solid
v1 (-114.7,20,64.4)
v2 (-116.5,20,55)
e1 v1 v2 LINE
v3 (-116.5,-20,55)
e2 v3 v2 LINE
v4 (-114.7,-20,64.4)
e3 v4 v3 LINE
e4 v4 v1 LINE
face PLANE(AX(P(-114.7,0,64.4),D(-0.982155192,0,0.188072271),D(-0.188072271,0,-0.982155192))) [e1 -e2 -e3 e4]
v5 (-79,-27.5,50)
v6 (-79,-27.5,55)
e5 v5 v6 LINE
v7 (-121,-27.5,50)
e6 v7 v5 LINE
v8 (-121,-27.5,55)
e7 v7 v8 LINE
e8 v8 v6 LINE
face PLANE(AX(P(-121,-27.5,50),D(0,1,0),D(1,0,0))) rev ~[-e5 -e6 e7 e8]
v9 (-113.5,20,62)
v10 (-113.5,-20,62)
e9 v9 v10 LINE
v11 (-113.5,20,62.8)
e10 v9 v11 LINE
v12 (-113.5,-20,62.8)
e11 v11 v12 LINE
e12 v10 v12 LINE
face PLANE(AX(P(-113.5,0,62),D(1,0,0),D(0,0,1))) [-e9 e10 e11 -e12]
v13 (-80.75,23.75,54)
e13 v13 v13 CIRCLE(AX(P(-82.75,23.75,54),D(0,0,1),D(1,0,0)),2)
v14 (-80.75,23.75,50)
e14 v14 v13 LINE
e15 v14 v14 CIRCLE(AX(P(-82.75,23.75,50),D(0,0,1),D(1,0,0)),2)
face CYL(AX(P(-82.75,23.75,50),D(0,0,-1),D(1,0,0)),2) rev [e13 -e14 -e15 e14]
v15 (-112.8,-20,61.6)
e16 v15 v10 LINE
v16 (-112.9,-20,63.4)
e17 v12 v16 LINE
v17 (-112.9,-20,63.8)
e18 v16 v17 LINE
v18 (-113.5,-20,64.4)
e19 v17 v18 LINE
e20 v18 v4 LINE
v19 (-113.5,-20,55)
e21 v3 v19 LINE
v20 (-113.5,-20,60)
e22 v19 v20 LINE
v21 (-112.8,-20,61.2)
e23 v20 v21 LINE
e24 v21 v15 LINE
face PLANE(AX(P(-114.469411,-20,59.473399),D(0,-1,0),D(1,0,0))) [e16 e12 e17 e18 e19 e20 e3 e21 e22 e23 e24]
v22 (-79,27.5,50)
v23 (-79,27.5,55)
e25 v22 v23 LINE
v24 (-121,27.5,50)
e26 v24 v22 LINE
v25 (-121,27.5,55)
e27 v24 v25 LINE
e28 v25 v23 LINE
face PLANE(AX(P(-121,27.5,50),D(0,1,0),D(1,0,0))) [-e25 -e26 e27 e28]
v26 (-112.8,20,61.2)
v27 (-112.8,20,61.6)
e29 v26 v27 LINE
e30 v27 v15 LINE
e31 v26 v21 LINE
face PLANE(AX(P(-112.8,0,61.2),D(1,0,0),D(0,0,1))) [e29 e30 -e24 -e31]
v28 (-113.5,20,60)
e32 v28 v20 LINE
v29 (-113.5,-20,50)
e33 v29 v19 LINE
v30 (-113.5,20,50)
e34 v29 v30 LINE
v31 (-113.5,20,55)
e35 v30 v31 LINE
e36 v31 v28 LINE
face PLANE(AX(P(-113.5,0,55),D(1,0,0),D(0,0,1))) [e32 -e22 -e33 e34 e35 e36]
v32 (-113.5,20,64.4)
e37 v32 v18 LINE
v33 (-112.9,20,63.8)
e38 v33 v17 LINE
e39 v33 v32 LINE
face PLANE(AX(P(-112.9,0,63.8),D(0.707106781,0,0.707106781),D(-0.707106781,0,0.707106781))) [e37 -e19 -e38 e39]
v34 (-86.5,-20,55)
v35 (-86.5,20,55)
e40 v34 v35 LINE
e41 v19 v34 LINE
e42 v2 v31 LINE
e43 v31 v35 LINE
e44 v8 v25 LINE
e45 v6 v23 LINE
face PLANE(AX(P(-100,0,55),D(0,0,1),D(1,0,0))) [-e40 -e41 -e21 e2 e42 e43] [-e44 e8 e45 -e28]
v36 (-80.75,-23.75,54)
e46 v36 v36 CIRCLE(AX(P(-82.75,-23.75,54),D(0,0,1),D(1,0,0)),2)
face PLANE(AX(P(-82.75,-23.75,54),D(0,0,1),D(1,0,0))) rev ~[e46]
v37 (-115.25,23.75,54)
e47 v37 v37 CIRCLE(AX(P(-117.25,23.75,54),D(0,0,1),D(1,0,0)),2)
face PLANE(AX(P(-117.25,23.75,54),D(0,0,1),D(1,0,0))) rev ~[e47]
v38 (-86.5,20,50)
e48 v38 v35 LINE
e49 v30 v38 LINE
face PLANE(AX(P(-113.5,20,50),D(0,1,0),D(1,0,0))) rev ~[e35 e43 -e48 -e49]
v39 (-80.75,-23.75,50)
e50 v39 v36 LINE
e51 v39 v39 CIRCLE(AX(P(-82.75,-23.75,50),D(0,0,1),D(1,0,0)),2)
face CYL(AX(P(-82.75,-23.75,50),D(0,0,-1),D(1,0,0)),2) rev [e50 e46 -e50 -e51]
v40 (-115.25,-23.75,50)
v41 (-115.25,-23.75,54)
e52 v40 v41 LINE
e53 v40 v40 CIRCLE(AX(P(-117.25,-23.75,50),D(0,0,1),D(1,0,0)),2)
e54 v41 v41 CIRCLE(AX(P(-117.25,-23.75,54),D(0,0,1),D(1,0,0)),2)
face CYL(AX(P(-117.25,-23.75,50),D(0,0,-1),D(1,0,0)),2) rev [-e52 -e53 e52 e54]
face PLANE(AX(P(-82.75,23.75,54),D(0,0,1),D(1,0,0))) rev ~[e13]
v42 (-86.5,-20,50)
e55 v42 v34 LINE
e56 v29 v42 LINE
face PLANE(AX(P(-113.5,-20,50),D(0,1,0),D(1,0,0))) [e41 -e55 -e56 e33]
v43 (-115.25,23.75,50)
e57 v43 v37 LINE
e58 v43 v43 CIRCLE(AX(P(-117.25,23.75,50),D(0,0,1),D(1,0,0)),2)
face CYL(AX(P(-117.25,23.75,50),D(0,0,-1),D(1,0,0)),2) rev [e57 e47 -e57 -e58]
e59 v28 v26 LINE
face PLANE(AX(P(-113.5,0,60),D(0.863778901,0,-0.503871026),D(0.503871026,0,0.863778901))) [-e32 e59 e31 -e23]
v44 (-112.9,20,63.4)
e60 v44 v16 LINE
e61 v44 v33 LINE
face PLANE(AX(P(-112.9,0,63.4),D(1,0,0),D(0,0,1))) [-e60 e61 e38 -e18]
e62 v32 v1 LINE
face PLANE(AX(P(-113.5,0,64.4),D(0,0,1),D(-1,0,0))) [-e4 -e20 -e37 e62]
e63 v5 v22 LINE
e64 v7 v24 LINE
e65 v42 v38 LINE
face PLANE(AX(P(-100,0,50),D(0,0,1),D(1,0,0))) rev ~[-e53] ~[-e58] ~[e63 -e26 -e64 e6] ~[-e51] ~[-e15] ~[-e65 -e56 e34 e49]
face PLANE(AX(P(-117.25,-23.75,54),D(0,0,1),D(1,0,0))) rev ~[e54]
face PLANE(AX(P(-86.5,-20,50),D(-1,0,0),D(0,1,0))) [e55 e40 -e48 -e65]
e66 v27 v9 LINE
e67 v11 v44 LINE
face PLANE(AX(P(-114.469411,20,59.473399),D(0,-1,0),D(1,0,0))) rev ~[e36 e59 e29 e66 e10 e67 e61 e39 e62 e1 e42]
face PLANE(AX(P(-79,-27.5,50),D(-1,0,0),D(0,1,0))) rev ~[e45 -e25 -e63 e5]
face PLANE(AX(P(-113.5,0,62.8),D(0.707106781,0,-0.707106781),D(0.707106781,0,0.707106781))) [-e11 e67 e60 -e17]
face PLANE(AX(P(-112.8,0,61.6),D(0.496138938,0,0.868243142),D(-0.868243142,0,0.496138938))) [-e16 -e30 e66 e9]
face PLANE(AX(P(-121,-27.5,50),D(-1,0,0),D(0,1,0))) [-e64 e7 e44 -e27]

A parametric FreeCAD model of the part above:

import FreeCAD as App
import Part
import Sketcher

V = App.Vector
Q = App.Units.Quantity

doc = App.newDocument("Part")
body = doc.addObject("PartDesign::Body", "Body")

sketch1 = doc.addObject("Sketcher::SketchObject", "Sketch")
body.addObject(sketch1)
sketch1.AttachmentSupport = (doc.XY_Plane, [""])
sketch1.MapMode = "FlatFace"
sketch1.addGeometry(Part.LineSegment(V(-21, 28, 0), V(-21, -28, 0)), False)
sketch1.addGeometry(Part.LineSegment(V(-21, -28, 0), V(21, -28, 0)), False)
sketch1.addGeometry(Part.LineSegment(V(21, -28, 0), V(21, 28, 0)), False)
sketch1.addGeometry(Part.LineSegment(V(21, 28, 0), V(-21, 28, 0)), False)
sketch1.addGeometry(Part.LineSegment(V(14, -20, 0), V(-14, -20, 0)), False)
sketch1.addGeometry(Part.LineSegment(V(-14, -20, 0), V(-14, 20, 0)), False)
sketch1.addGeometry(Part.LineSegment(V(-14, 20, 0), V(14, 20, 0)), False)
sketch1.addGeometry(Part.LineSegment(V(14, 20, 0), V(14, -20, 0)), False)
sketch1.addConstraint(Sketcher.Constraint("Coincident", 0, 2, 1, 1))
sketch1.addConstraint(Sketcher.Constraint("Coincident", 1, 2, 2, 1))
sketch1.addConstraint(Sketcher.Constraint("Coincident", 2, 2, 3, 1))
sketch1.addConstraint(Sketcher.Constraint("Coincident", 3, 2, 0, 1))
sketch1.addConstraint(Sketcher.Constraint("Coincident", 4, 2, 5, 1))
sketch1.addConstraint(Sketcher.Constraint("Coincident", 5, 2, 6, 1))
sketch1.addConstraint(Sketcher.Constraint("Coincident", 6, 2, 7, 1))
sketch1.addConstraint(Sketcher.Constraint("Coincident", 7, 2, 4, 1))
sketch1.addConstraint(Sketcher.Constraint("Vertical", 0))
sketch1.addConstraint(Sketcher.Constraint("Horizontal", 1))
sketch1.addConstraint(Sketcher.Constraint("Vertical", 2))
sketch1.addConstraint(Sketcher.Constraint("Horizontal", 3))
sketch1.addConstraint(Sketcher.Constraint("Horizontal", 4))
sketch1.addConstraint(Sketcher.Constraint("Vertical", 5))
sketch1.addConstraint(Sketcher.Constraint("Horizontal", 6))
sketch1.addConstraint(Sketcher.Constraint("Vertical", 7))
sketch1.addConstraint(Sketcher.Constraint("Symmetric", 0, 2, 2, 2, -1, 1))
sketch1.addConstraint(Sketcher.Constraint("Symmetric", 4, 2, 6, 2, -1, 1))
sketch1.addConstraint(Sketcher.Constraint("DistanceX", 1, 1, 1, 2, Q("42 mm")))
sketch1.addConstraint(Sketcher.Constraint("DistanceX", 4, 2, 4, 1, Q("27 mm")))
sketch1.addConstraint(Sketcher.Constraint("DistanceY", 0, 2, 0, 1, Q("55 mm")))
sketch1.addConstraint(Sketcher.Constraint("DistanceY", 5, 1, 5, 2, Q("40 mm")))
pad1 = doc.addObject("PartDesign::Pad", "Pad")
body.addObject(pad1)
pad1.Profile = sketch1
pad1.Length = 5

sketch2 = doc.addObject("Sketcher::SketchObject", "Sketch001")
body.addObject(sketch2)
sketch2.AttachmentSupport = (doc.XY_Plane, [""])
sketch2.MapMode = "FlatFace"
sketch2.addGeometry(Part.Circle(V(-17.2, 23.8, 0), V(0, 0, 1), 2), False)
sketch2.addGeometry(Part.Circle(V(17.2, 23.8, 0), V(0, 0, 1), 2), False)
sketch2.addGeometry(Part.Circle(V(17.2, -23.8, 0), V(0, 0, 1), 2), False)
sketch2.addGeometry(Part.Circle(V(-17.2, -23.8, 0), V(0, 0, 1), 2), False)
sketch2.addConstraint(Sketcher.Constraint("Equal", 0, 1))
sketch2.addConstraint(Sketcher.Constraint("Equal", 1, 2))
sketch2.addConstraint(Sketcher.Constraint("Equal", 2, 3))
sketch2.addConstraint(Sketcher.Constraint("Symmetric", 0, 3, 2, 3, -1, 1))
sketch2.addConstraint(Sketcher.Constraint("Symmetric", 1, 3, 3, 3, -1, 1))
sketch2.addConstraint(Sketcher.Constraint("Symmetric", 0, 3, 1, 3, -2))
sketch2.addConstraint(Sketcher.Constraint("Diameter", 0, Q("4 mm")))
sketch2.addConstraint(Sketcher.Constraint("DistanceX", 0, 3, 1, 3, Q("34.5 mm")))
sketch2.addConstraint(Sketcher.Constraint("DistanceY", 2, 3, 1, 3, Q("47.5 mm")))
pocket1 = doc.addObject("PartDesign::Pocket", "Pocket")
body.addObject(pocket1)
pocket1.Profile = sketch2
pocket1.Length = 4
pocket1.Reversed = True

sketch3 = doc.addObject("Sketcher::SketchObject", "Sketch002")
body.addObject(sketch3)
sketch3.AttachmentSupport = (doc.XZ_Plane, [""])
sketch3.MapMode = "FlatFace"
sketch3.addGeometry(Part.LineSegment(V(-13.5, 5, 0), V(-13.5, 10, 0)), False)
sketch3.addGeometry(Part.LineSegment(V(-13.5, 10, 0), V(-12.8, 11.2, 0)), False)
sketch3.addGeometry(Part.LineSegment(V(-12.8, 11.2, 0), V(-12.8, 11.6, 0)), False)
sketch3.addGeometry(Part.LineSegment(V(-12.8, 11.6, 0), V(-13.5, 12, 0)), False)
sketch3.addGeometry(Part.LineSegment(V(-13.5, 12, 0), V(-13.5, 12.8, 0)), False)
sketch3.addGeometry(Part.LineSegment(V(-13.5, 12.8, 0), V(-12.9, 13.4, 0)), False)
sketch3.addGeometry(Part.LineSegment(V(-12.9, 13.4, 0), V(-12.9, 13.8, 0)), False)
sketch3.addGeometry(Part.LineSegment(V(-12.9, 13.8, 0), V(-13.5, 14.4, 0)), False)
sketch3.addGeometry(Part.LineSegment(V(-13.5, 14.4, 0), V(-14.7, 14.4, 0)), False)
sketch3.addGeometry(Part.LineSegment(V(-14.7, 14.4, 0), V(-16.5, 5, 0)), False)
sketch3.addGeometry(Part.LineSegment(V(-16.5, 5, 0), V(-13.5, 5, 0)), False)
sketch3.addConstraint(Sketcher.Constraint("Coincident", 0, 2, 1, 1))
sketch3.addConstraint(Sketcher.Constraint("Coincident", 1, 2, 2, 1))
sketch3.addConstraint(Sketcher.Constraint("Coincident", 2, 2, 3, 1))
sketch3.addConstraint(Sketcher.Constraint("Coincident", 3, 2, 4, 1))
sketch3.addConstraint(Sketcher.Constraint("Coincident", 4, 2, 5, 1))
sketch3.addConstraint(Sketcher.Constraint("Coincident", 5, 2, 6, 1))
sketch3.addConstraint(Sketcher.Constraint("Coincident", 6, 2, 7, 1))
sketch3.addConstraint(Sketcher.Constraint("Coincident", 7, 2, 8, 1))
sketch3.addConstraint(Sketcher.Constraint("Coincident", 8, 2, 9, 1))
sketch3.addConstraint(Sketcher.Constraint("Coincident", 9, 2, 10, 1))
sketch3.addConstraint(Sketcher.Constraint("Coincident", 10, 2, 0, 1))
sketch3.addConstraint(Sketcher.Constraint("Vertical", 0))
sketch3.addConstraint(Sketcher.Constraint("Vertical", 2))
sketch3.addConstraint(Sketcher.Constraint("Vertical", 4))
sketch3.addConstraint(Sketcher.Constraint("Vertical", 6))
sketch3.addConstraint(Sketcher.Constraint("Horizontal", 8))
sketch3.addConstraint(Sketcher.Constraint("Horizontal", 10))
sketch3.addConstraint(Sketcher.Constraint("Perpendicular", 5, 7))
sketch3.addConstraint(Sketcher.Constraint("Vertical", 0, 2, 3, 2))
sketch3.addConstraint(Sketcher.Constraint("Vertical", 4, 2, 7, 2))
sketch3.addConstraint(Sketcher.Constraint("Equal", 2, 6))
sketch3.addConstraint(Sketcher.Constraint("Equal", 5, 7))
sketch3.addConstraint(Sketcher.Constraint("DistanceX", 10, 1, 10, 2, Q("3 mm")))
sketch3.addConstraint(Sketcher.Constraint("DistanceY", 0, 1, 0, 2, Q("5 mm")))
sketch3.addConstraint(Sketcher.Constraint("DistanceX", 8, 2, 8, 1, Q("1.2 mm")))
sketch3.addConstraint(Sketcher.Constraint("DistanceY", 2, 1, 2, 2, Q("0.4 mm")))
sketch3.addConstraint(Sketcher.Constraint("DistanceY", 4, 1, 4, 2, Q("0.8 mm")))
sketch3.addConstraint(Sketcher.Constraint("DistanceY", -1, 1, 0, 2, Q("10 mm")))
sketch3.addConstraint(Sketcher.Constraint("DistanceY", -1, 1, 3, 2, Q("12 mm")))
sketch3.addConstraint(Sketcher.Constraint("DistanceY", 4, 2, 6, 2, Q("1 mm")))
sketch3.addConstraint(Sketcher.Constraint("DistanceX", 0, 2, -1, 1, Q("13.5 mm")))
sketch3.addConstraint(Sketcher.Constraint("DistanceX", 1, 2, -1, 1, Q("12.8 mm")))
sketch3.addConstraint(Sketcher.Constraint("DistanceY", -1, 1, 1, 2, Q("11.2 mm")))
pad2 = doc.addObject("PartDesign::Pad", "Pad001")
body.addObject(pad2)
pad2.Profile = sketch3
pad2.Length = 40
pad2.Midplane = True
body2 = doc.addObject("PartDesign::Body", "Body001")
doc.recompute()

body.Placement = App.Placement(V(-100, 0, 50), App.Rotation(V(0, 0, 1), 0))
boolean = doc.addObject("PartDesign::Boolean", "Boolean")
body2.addObject(boolean)
boolean.Type = "Fuse"
boolean.addObjects([body])

doc.recompute()
